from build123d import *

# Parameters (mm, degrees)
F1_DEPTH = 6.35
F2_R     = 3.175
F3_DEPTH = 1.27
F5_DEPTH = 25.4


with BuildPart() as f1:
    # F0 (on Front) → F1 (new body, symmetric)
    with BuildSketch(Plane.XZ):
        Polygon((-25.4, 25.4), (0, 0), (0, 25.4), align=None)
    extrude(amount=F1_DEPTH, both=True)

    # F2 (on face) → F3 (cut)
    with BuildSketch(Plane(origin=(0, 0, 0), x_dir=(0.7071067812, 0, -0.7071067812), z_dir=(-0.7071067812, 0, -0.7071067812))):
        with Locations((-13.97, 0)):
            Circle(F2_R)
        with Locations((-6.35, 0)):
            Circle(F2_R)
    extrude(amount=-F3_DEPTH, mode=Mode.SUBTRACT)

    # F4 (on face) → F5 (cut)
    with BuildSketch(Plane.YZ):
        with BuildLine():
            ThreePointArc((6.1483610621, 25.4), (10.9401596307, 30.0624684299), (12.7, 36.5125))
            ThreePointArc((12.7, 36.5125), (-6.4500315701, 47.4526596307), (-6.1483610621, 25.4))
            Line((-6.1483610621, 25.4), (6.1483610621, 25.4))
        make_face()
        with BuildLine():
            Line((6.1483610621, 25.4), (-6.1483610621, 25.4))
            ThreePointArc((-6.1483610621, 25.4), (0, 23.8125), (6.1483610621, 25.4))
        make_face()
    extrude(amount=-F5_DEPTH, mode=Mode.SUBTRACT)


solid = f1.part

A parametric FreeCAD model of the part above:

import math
import FreeCAD as App
import Part
import Sketcher

V = App.Vector
Q = App.Units.Quantity

doc = App.newDocument("Part")
body = doc.addObject("PartDesign::Body", "Body")

# Sketch on XZ plane
sketch1 = doc.addObject("Sketcher::SketchObject", "Sketch")
body.addObject(sketch1)
sketch1.AttachmentSupport = (doc.XZ_Plane, [""])
sketch1.MapMode = "FlatFace"
sketch1.addGeometry(Part.LineSegment(V(-25.4, 25.4, 0), V(0, 0, 0)), False)
sketch1.addGeometry(Part.LineSegment(V(0, 0, 0), V(0, 25.4, 0)), False)
sketch1.addGeometry(Part.LineSegment(V(0, 25.4, 0), V(-25.4, 25.4, 0)), False)
sketch1.addConstraint(Sketcher.Constraint("Coincident", 0, 2, 1, 1))
sketch1.addConstraint(Sketcher.Constraint("Coincident", 1, 2, 2, 1))
sketch1.addConstraint(Sketcher.Constraint("Coincident", 2, 2, 0, 1))
sketch1.addConstraint(Sketcher.Constraint("Vertical", 1))
sketch1.addConstraint(Sketcher.Constraint("Horizontal", 2))
sketch1.addConstraint(Sketcher.Constraint("Coincident", 0, 2, -1, 1))
sketch1.addConstraint(Sketcher.Constraint("Equal", 2, 1))
sketch1.addConstraint(Sketcher.Constraint("DistanceX", 2, 2, 2, 1, Q("1 in")))
pad1 = doc.addObject("PartDesign::Pad", "Pad")
body.addObject(pad1)
pad1.Profile = sketch1
pad1.Length = Q("0.5 in")
pad1.Midplane = True

# Sketch on an angled plane
sketch2 = doc.addObject("Sketcher::SketchObject", "Sketch001")
body.addObject(sketch2)
sketch2.Placement = App.Placement(V(0, 0, 0), App.Rotation(V(0.707106781, 0, -0.707106781), V(0, -0.999999999, 0), V(-0.707106781, 0, -0.707106781), "ZXY"))
sketch2.addGeometry(Part.Circle(V(-13.97, 0, 0), V(0, 0, 1), 3.175), False)
sketch2.addGeometry(Part.Circle(V(-6.35, 0, 0), V(0, 0, 1), 3.175), False)
sketch2.addConstraint(Sketcher.Constraint("Equal", 0, 1))
sketch2.addConstraint(Sketcher.Constraint("PointOnObject", 0, 3, -1))
sketch2.addConstraint(Sketcher.Constraint("PointOnObject", 1, 3, -1))
sketch2.addConstraint(Sketcher.Constraint("Diameter", 0, Q("0.25 in")))
sketch2.addConstraint(Sketcher.Constraint("DistanceX", 0, 3, 1, 3, Q("0.3 in")))
sketch2.addConstraint(Sketcher.Constraint("DistanceX", 0, 3, -1, 1, Q("0.55 in")))
pocket1 = doc.addObject("PartDesign::Pocket", "Pocket")
body.addObject(pocket1)
pocket1.Profile = sketch2
pocket1.Length = Q("0.05 in")

# Sketch on YZ plane
sketch3 = doc.addObject("Sketcher::SketchObject", "Sketch002")
body.addObject(sketch3)
sketch3.AttachmentSupport = (doc.YZ_Plane, [""])
sketch3.MapMode = "FlatFace"
sketch3.addGeometry(Part.ArcOfCircle(Part.Circle(V(0, 36.5125, 0), V(0, 0, 1), 12.7), math.radians(-61.044976), math.radians(0)), False)
sketch3.addGeometry(Part.ArcOfCircle(Part.Circle(V(0, 36.5125, 0), V(0, 0, 1), 12.7), math.radians(0), math.radians(241.044976)), False)
sketch3.addGeometry(Part.ArcOfCircle(Part.Circle(V(0, 36.5125, 0), V(0, 0, 1), 12.7), math.radians(-118.955024), math.radians(-61.044976)), False)
sketch3.addConstraint(Sketcher.Constraint("Tangent", 0, 2, 1, 1))
sketch3.addConstraint(Sketcher.Constraint("Tangent", 1, 2, 2, 1))
sketch3.addConstraint(Sketcher.Constraint("Tangent", 2, 2, 0, 1))
sketch3.addConstraint(Sketcher.Constraint("Symmetric", 1, 2, 2, 2, -2))
sketch3.addConstraint(Sketcher.Constraint("Horizontal", 2, 3, 0, 2))
sketch3.addConstraint(Sketcher.Constraint("Radius", 0, Q("0.5 in")))
sketch3.addConstraint(Sketcher.Constraint("DistanceY", -1, 1, 1, 2, Q("1 in")))
sketch3.addConstraint(Sketcher.Constraint("DistanceY", -1, 1, 0, 3, Q("1.4375 in")))
pocket2 = doc.addObject("PartDesign::Pocket", "Pocket001")
body.addObject(pocket2)
pocket2.Profile = sketch3
pocket2.Length = Q("1 in")

doc.recompute()
